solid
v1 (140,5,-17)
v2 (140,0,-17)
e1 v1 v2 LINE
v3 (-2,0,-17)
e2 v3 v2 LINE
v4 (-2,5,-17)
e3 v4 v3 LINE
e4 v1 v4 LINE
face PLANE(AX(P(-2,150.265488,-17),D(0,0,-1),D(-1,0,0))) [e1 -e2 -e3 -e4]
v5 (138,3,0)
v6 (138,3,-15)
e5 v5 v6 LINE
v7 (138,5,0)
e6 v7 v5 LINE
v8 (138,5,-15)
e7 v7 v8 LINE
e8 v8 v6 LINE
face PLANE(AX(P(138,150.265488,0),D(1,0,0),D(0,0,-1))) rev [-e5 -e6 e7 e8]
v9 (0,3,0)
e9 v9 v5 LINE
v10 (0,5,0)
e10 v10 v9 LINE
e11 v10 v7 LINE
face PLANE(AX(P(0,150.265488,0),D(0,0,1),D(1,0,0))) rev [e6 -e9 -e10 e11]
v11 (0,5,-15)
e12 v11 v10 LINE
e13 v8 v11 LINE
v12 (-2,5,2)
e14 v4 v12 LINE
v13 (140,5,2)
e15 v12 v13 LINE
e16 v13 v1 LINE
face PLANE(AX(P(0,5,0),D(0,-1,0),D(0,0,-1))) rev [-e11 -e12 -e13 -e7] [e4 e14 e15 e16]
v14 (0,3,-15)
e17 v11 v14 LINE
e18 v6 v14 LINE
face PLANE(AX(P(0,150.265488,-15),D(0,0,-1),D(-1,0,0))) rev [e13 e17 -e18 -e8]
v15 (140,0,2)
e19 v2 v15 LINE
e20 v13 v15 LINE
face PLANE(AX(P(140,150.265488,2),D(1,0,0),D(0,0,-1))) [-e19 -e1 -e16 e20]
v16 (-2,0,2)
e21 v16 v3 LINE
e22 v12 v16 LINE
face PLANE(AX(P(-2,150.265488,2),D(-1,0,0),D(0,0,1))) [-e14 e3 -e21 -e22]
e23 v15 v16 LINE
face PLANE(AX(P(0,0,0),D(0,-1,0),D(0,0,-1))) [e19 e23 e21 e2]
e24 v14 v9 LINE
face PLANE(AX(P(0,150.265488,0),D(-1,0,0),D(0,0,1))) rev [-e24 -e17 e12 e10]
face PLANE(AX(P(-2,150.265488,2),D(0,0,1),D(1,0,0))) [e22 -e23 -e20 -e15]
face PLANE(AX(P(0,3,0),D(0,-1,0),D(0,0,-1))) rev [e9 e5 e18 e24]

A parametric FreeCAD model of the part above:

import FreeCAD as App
import Part
import Sketcher
from FreeCAD import Vector

doc = App.newDocument("Part")
body = doc.addObject("PartDesign::Body", "Body")

# Sketch on XZ plane
sketch1 = doc.addObject("Sketcher::SketchObject", "Sketch")
body.addObject(sketch1)
sketch1.AttachmentSupport = (doc.XZ_Plane, [""])
sketch1.MapMode = "FlatFace"
sketch1.addGeometry([
    Part.LineSegment(Vector(0, -15, 0), Vector(0, 0, 0)),
    Part.LineSegment(Vector(0, 0, 0), Vector(138, 0, 0)),
    Part.LineSegment(Vector(138, 0, 0), Vector(138, -15, 0)),
    Part.LineSegment(Vector(138, -15, 0), Vector(0, -15, 0)),
], False)
sketch1.addConstraint([
    Sketcher.Constraint("Coincident", 0, 2, 1, 1),
    Sketcher.Constraint("Coincident", 1, 2, 2, 1),
    Sketcher.Constraint("Coincident", 2, 2, 3, 1),
    Sketcher.Constraint("Coincident", 3, 2, 0, 1),
    Sketcher.Constraint("Vertical", 0),
    Sketcher.Constraint("Horizontal", 1),
    Sketcher.Constraint("Vertical", 2),
    Sketcher.Constraint("Horizontal", 3),
    Sketcher.Constraint("Coincident", 0, 2, -1, 1),
    Sketcher.Constraint("DistanceX", 1, 1, 1, 2, 138.0),
    Sketcher.Constraint("DistanceY", 0, 1, 0, 2, 15.0),
])
pad1 = doc.addObject("PartDesign::Pad", "Pad")
body.addObject(pad1)
pad1.Profile = sketch1
pad1.Length = 3
pad1.Reversed = True

# Sketch on XZ plane
sketch2 = doc.addObject("Sketcher::SketchObject", "Sketch001")
body.addObject(sketch2)
sketch2.AttachmentSupport = (doc.XZ_Plane, [""])
sketch2.MapMode = "FlatFace"
sketch2.addGeometry([
    Part.LineSegment(Vector(-2, 2, 0), Vector(-2, -17, 0)),  # 0
    Part.LineSegment(Vector(-2, -17, 0), Vector(140, -17, 0)),  # 1
    Part.LineSegment(Vector(140, -17, 0), Vector(140, 2, 0)),  # 2
    Part.LineSegment(Vector(140, 2, 0), Vector(-2, 2, 0)),  # 3
    Part.LineSegment(Vector(138, -15, 0), Vector(0, -15, 0)),  # 4
    Part.LineSegment(Vector(0, -15, 0), Vector(0, 0, 0)),  # 5
    Part.LineSegment(Vector(0, 0, 0), Vector(138, 0, 0)),  # 6
    Part.LineSegment(Vector(138, 0, 0), Vector(138, -15, 0)),  # 7
], False)
sketch2.addConstraint([
    Sketcher.Constraint("Coincident", 0, 2, 1, 1),
    Sketcher.Constraint("Coincident", 1, 2, 2, 1),
    Sketcher.Constraint("Coincident", 2, 2, 3, 1),
    Sketcher.Constraint("Coincident", 3, 2, 0, 1),
    Sketcher.Constraint("Coincident", 4, 2, 5, 1),
    Sketcher.Constraint("Coincident", 5, 2, 6, 1),
    Sketcher.Constraint("Coincident", 6, 2, 7, 1),
    Sketcher.Constraint("Coincident", 7, 2, 4, 1),
    Sketcher.Constraint("Vertical", 0),
    Sketcher.Constraint("Horizontal", 1),
    Sketcher.Constraint("Vertical", 2),
    Sketcher.Constraint("Horizontal", 3),
    Sketcher.Constraint("Horizontal", 4),
    Sketcher.Constraint("Vertical", 5),
    Sketcher.Constraint("Horizontal", 6),
    Sketcher.Constraint("Vertical", 7),
    Sketcher.Constraint("Coincident", 5, 2, -1, 1),
    Sketcher.Constraint("DistanceX", 1, 1, 1, 2, 142.0),
    Sketcher.Constraint("DistanceX", 4, 2, 4, 1, 138.0),
    Sketcher.Constraint("DistanceY", 0, 2, 0, 1, 19.0),
    Sketcher.Constraint("DistanceY", 5, 1, 5, 2, 15.0),
    Sketcher.Constraint("DistanceX", 0, 2, -1, 1, 2.0),
    Sketcher.Constraint("DistanceY", 0, 2, -1, 1, 17.0),
])
pad2 = doc.addObject("PartDesign::Pad", "Pad001")
body.addObject(pad2)
pad2.Profile = sketch2
pad2.Length = 5
pad2.Reversed = True

doc.recompute()
